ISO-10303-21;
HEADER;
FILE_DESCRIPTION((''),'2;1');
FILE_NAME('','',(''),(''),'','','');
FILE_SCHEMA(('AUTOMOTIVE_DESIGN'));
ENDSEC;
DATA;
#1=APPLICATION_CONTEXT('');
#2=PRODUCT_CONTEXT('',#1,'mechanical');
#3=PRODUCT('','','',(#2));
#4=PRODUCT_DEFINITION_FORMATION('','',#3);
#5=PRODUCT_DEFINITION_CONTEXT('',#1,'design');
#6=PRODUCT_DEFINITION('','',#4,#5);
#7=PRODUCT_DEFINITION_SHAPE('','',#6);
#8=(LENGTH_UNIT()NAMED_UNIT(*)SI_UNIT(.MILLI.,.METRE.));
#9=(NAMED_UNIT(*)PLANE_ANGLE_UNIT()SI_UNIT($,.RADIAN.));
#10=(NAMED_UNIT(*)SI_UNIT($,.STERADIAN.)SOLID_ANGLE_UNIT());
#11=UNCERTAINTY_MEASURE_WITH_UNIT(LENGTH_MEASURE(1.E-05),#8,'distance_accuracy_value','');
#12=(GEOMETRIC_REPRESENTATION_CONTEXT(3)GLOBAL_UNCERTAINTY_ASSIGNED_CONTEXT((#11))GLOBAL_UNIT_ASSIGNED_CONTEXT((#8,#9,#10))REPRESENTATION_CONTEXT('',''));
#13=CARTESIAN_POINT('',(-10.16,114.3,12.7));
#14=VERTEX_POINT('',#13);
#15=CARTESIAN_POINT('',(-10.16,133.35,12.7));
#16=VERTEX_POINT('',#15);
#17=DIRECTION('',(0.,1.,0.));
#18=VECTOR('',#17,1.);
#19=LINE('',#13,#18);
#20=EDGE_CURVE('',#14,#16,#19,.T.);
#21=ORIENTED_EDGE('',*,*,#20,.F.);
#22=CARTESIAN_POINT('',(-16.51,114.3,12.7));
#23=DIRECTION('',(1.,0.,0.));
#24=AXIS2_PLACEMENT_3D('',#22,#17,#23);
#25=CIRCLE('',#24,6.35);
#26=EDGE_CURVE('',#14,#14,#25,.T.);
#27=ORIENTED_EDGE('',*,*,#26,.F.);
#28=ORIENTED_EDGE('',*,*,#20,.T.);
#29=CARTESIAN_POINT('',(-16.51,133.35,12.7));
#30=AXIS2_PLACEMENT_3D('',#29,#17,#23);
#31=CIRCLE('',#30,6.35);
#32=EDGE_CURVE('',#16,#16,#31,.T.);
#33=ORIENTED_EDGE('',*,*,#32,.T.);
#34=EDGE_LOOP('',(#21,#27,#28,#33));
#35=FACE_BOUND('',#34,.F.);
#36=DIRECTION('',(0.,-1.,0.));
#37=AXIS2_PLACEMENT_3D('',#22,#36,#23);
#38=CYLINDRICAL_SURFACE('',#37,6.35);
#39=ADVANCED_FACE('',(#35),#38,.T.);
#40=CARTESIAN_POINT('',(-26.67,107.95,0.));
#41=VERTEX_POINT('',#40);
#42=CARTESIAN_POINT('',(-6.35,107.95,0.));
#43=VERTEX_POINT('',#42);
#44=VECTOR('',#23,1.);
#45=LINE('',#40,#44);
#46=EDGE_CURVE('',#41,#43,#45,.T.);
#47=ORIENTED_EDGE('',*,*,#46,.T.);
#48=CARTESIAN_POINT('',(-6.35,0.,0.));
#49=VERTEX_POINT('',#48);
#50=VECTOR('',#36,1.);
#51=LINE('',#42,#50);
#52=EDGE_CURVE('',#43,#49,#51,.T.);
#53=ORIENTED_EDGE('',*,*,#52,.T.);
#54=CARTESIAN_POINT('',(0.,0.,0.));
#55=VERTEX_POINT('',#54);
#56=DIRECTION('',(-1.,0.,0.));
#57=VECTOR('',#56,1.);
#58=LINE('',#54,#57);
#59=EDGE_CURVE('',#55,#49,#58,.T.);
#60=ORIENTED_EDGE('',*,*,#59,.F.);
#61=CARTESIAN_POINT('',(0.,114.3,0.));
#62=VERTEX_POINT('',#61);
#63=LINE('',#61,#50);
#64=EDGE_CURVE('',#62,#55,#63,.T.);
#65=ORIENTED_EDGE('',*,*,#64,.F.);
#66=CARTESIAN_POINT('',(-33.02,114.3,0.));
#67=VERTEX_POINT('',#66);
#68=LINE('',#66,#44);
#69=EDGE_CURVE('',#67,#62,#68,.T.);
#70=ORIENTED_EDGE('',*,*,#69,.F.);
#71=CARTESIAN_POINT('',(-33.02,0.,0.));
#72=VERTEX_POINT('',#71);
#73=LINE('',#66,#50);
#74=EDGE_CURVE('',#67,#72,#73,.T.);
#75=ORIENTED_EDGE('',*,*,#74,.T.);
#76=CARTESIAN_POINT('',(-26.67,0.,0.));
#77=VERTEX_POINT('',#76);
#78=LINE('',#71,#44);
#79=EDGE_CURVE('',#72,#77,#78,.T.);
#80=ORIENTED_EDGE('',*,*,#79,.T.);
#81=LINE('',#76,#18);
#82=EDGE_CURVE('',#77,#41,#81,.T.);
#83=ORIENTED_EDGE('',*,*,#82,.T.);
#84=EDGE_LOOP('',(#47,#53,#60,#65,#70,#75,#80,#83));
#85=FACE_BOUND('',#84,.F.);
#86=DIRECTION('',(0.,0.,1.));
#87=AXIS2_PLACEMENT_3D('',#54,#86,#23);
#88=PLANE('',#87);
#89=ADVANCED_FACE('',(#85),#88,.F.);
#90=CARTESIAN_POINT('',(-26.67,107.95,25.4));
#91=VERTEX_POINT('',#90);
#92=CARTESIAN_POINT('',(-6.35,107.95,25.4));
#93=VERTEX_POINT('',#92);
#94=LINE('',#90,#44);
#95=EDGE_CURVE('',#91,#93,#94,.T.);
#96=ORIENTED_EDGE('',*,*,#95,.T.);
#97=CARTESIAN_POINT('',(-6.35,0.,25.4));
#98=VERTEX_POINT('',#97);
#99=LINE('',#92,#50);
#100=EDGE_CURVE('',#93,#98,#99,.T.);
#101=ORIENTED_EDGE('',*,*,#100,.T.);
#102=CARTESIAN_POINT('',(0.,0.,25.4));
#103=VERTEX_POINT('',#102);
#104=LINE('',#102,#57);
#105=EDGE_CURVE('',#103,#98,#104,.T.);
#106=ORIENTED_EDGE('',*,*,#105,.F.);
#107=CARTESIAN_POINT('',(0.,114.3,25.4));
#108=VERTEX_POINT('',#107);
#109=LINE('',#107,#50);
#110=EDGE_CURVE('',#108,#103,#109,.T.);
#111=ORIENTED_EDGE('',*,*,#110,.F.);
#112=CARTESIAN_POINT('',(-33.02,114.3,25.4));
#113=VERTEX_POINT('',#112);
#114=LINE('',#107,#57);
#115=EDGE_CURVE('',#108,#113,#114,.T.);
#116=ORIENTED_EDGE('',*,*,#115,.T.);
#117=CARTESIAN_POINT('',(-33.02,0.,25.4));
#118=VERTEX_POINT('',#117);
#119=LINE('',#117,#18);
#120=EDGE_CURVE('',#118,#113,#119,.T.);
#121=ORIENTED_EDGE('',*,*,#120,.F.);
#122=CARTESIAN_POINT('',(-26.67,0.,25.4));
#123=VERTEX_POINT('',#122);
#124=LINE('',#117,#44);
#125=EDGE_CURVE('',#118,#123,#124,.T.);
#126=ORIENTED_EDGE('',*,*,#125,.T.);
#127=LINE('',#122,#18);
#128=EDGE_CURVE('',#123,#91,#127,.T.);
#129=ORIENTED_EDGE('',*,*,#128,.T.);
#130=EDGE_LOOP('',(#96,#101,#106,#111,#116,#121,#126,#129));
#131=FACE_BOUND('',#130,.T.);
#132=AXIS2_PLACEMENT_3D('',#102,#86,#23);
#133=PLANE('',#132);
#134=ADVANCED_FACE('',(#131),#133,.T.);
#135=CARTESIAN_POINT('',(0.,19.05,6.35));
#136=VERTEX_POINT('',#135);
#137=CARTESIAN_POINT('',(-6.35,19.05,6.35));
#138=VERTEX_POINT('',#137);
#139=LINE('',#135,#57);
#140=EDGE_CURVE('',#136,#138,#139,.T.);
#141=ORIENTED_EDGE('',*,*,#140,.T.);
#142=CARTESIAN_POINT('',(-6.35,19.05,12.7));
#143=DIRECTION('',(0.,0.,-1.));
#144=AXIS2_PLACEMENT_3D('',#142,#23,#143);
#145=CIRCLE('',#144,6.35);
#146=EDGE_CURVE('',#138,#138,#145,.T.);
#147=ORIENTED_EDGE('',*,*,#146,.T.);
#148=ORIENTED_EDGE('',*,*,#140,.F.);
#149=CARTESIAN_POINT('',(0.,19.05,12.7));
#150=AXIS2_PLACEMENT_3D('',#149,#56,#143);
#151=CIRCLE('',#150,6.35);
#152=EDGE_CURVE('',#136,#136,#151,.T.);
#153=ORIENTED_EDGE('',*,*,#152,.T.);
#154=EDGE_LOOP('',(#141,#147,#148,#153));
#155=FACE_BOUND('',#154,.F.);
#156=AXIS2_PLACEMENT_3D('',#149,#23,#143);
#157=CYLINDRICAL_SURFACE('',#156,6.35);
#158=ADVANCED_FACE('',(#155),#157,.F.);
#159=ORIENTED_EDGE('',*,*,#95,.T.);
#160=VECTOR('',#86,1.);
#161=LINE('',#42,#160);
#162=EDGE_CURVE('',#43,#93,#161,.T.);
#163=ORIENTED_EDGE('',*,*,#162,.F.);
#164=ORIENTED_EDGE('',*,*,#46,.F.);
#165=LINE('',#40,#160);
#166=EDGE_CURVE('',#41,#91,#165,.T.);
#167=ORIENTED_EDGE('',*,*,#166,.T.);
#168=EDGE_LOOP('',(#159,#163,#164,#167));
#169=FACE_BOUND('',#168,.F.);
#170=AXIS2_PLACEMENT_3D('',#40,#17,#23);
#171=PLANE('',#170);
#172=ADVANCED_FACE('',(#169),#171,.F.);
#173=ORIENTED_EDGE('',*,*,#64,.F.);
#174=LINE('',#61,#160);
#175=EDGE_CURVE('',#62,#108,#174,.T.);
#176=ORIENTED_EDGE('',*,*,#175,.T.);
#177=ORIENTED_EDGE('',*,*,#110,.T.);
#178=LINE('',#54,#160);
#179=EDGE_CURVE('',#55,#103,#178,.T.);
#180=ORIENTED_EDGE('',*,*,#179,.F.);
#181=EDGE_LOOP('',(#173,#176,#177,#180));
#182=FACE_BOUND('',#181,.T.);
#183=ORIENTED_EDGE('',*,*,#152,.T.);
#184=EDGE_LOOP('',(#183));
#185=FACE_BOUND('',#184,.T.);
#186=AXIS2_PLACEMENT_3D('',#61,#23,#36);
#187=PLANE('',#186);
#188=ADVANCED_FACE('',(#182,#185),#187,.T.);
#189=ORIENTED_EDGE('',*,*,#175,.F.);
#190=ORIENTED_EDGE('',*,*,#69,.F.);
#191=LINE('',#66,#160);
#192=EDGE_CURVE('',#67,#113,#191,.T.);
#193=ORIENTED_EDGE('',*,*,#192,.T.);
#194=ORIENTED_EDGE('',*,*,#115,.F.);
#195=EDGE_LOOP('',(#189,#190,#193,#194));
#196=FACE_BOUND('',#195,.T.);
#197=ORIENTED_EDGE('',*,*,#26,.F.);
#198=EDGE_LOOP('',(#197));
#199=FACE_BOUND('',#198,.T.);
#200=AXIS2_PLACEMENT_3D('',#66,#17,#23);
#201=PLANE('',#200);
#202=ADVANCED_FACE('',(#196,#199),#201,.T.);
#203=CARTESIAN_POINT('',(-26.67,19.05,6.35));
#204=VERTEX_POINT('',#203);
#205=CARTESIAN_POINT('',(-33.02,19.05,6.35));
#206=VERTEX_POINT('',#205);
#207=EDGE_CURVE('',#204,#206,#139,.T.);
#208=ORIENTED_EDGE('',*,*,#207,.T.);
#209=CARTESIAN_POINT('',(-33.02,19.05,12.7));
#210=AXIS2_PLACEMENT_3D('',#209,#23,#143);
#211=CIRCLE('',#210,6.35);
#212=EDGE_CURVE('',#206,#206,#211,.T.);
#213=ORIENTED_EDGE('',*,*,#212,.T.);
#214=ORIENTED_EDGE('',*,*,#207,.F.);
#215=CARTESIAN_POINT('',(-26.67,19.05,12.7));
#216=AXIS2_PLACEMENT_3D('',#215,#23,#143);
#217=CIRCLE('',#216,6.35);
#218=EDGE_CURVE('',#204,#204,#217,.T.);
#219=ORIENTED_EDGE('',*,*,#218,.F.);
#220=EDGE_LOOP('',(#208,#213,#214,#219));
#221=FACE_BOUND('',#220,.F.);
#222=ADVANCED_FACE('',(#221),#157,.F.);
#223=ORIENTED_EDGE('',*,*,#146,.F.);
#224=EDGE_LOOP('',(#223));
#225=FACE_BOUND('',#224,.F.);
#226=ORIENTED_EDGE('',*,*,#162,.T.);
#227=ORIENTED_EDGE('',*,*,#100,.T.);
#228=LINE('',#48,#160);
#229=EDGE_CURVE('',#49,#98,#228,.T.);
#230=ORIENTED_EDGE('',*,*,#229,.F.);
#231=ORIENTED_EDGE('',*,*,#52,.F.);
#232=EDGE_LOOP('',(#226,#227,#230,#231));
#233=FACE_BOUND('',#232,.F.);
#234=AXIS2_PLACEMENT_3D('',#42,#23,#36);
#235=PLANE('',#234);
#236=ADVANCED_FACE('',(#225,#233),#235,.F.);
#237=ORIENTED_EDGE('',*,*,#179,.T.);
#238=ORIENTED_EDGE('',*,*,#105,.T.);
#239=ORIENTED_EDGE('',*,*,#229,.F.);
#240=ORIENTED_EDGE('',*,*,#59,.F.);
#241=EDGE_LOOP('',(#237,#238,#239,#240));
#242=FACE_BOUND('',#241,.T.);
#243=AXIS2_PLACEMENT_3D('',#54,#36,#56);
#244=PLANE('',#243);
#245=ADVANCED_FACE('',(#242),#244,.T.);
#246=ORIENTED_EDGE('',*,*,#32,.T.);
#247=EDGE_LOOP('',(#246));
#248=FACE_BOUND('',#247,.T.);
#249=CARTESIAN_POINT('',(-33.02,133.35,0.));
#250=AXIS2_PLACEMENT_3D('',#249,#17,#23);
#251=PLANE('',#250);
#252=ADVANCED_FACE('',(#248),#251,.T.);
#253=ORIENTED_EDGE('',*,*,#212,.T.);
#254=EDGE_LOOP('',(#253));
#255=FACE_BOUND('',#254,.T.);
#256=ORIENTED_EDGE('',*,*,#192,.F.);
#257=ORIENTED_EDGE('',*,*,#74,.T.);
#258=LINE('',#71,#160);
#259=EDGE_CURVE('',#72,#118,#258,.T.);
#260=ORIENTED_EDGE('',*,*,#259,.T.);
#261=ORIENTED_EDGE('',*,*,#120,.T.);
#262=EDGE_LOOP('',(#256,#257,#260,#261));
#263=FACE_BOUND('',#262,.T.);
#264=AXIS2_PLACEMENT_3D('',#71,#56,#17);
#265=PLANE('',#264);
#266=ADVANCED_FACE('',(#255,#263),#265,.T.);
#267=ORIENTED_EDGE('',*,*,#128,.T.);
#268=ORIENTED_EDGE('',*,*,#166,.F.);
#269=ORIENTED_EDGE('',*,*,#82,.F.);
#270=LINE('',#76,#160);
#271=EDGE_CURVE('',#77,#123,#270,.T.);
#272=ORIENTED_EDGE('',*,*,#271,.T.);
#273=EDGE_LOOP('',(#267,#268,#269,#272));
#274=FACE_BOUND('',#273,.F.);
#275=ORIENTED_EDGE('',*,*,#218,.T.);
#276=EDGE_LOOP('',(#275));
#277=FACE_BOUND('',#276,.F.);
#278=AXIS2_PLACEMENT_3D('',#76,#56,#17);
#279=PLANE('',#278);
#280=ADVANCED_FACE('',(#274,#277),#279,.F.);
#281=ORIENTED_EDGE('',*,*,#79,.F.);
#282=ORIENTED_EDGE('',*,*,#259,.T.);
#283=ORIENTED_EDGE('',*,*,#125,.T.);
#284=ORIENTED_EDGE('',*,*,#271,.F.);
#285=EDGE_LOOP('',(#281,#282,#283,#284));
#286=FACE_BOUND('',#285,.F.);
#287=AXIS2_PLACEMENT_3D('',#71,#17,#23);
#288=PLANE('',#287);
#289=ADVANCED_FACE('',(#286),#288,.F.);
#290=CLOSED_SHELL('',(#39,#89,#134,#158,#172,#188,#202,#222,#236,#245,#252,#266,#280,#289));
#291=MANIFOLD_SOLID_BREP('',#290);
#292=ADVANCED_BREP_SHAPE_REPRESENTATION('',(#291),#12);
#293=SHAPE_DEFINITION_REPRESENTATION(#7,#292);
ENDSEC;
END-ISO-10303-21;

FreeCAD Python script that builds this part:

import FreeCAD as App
import Part
import Sketcher
from FreeCAD import Vector
Q = App.Units.Quantity


def add_polygon(sketch, points):
    """Adds a closed chain of lines whose ends are joined by coincident constraints."""
    first, n = sketch.GeometryCount, len(points)
    for a, b in zip(points, points[1:] + points[:1]):
        sketch.addGeometry(Part.LineSegment(App.Vector(*a, 0), App.Vector(*b, 0)), False)
    for i in range(n):
        sketch.addConstraint(Sketcher.Constraint("Coincident", first + i, 2, first + (i + 1) % n, 1))

doc = App.newDocument("Part")
body = doc.addObject("PartDesign::Body", "Body")

# Sketch on XY plane
sketch1 = body.newObject("Sketcher::SketchObject", "Sketch")
sketch1.AttachmentSupport = (doc.getObject("XY_Plane"), [""])
sketch1.MapMode = "FlatFace"
add_polygon(sketch1, [(-33, 114), (-33, 0), (-27, 0), (-27, 108), (-6, 108), (-6, 0), (0, 0), (0, 114)])  # lines 0-7
sketch1.addConstraint([
    Sketcher.Constraint("Vertical", 0),
    Sketcher.Constraint("Horizontal", 1),
    Sketcher.Constraint("Vertical", 2),
    Sketcher.Constraint("Horizontal", 3),
    Sketcher.Constraint("Vertical", 4),
    Sketcher.Constraint("Horizontal", 5),
    Sketcher.Constraint("Vertical", 6),
    Sketcher.Constraint("Horizontal", 7),
    Sketcher.Constraint("Coincident", 5, 2, -1, 1),
    Sketcher.Constraint("PointOnObject", 0, 2, -1),
    Sketcher.Constraint("Equal", 1, 5),
    Sketcher.Constraint("DistanceX", 7, 2, 7, 1, Q("1.3 in")),
    Sketcher.Constraint("DistanceY", 0, 2, 0, 1, Q("4.5 in")),
    Sketcher.Constraint("DistanceX", 1, 1, 1, 2, Q("0.25 in")),
    Sketcher.Constraint("DistanceY", 3, 2, 6, 2, Q("0.25 in")),
])
pad1 = body.newObject("PartDesign::Pad", "Pad")
pad1.Profile = sketch1
pad1.Length = Q("1 in")

# Sketch on YZ plane
sketch2 = body.newObject("Sketcher::SketchObject", "Sketch001")
sketch2.AttachmentSupport = (doc.getObject("YZ_Plane"), [""])
sketch2.MapMode = "FlatFace"
sketch2.addGeometry(Part.Circle(Vector(19, 13, 0), Vector(0, 0, 1), 6), False)
sketch2.addConstraint([
    Sketcher.Constraint("Diameter", 0, Q("0.5 in")),
    Sketcher.Constraint("DistanceY", -1, 1, 0, 3, Q("0.5 in")),
    Sketcher.Constraint("DistanceX", -1, 1, 0, 3, Q("0.75 in")),
])
pocket1 = body.newObject("PartDesign::Pocket", "Pocket")
pocket1.Profile = sketch2
pocket1.Length = Q("10 in")

# Sketch on XZ plane
sketch3 = body.newObject("Sketcher::SketchObject", "Sketch002")
sketch3.AttachmentSupport = (doc.getObject("XZ_Plane"), [""])
sketch3.MapMode = "FlatFace"
sketch3.AttachmentOffset = App.Placement(Vector(0, 0, -4.5 * 25.4), App.Rotation())
sketch3.addGeometry(Part.Circle(Vector(-17, 13, 0), Vector(0, 0, 1), 6), False)
sketch3.addConstraint([
    Sketcher.Constraint("Diameter", 0, Q("0.5 in")),
    Sketcher.Constraint("DistanceY", -1, 1, 0, 3, Q("0.5 in")),
    Sketcher.Constraint("DistanceX", 0, 3, -1, 1, Q("0.65 in")),
])
pad2 = body.newObject("PartDesign::Pad", "Pad001")
pad2.Profile = sketch3
pad2.Length = Q("0.75 in")
pad2.Reversed = True

doc.recompute()
